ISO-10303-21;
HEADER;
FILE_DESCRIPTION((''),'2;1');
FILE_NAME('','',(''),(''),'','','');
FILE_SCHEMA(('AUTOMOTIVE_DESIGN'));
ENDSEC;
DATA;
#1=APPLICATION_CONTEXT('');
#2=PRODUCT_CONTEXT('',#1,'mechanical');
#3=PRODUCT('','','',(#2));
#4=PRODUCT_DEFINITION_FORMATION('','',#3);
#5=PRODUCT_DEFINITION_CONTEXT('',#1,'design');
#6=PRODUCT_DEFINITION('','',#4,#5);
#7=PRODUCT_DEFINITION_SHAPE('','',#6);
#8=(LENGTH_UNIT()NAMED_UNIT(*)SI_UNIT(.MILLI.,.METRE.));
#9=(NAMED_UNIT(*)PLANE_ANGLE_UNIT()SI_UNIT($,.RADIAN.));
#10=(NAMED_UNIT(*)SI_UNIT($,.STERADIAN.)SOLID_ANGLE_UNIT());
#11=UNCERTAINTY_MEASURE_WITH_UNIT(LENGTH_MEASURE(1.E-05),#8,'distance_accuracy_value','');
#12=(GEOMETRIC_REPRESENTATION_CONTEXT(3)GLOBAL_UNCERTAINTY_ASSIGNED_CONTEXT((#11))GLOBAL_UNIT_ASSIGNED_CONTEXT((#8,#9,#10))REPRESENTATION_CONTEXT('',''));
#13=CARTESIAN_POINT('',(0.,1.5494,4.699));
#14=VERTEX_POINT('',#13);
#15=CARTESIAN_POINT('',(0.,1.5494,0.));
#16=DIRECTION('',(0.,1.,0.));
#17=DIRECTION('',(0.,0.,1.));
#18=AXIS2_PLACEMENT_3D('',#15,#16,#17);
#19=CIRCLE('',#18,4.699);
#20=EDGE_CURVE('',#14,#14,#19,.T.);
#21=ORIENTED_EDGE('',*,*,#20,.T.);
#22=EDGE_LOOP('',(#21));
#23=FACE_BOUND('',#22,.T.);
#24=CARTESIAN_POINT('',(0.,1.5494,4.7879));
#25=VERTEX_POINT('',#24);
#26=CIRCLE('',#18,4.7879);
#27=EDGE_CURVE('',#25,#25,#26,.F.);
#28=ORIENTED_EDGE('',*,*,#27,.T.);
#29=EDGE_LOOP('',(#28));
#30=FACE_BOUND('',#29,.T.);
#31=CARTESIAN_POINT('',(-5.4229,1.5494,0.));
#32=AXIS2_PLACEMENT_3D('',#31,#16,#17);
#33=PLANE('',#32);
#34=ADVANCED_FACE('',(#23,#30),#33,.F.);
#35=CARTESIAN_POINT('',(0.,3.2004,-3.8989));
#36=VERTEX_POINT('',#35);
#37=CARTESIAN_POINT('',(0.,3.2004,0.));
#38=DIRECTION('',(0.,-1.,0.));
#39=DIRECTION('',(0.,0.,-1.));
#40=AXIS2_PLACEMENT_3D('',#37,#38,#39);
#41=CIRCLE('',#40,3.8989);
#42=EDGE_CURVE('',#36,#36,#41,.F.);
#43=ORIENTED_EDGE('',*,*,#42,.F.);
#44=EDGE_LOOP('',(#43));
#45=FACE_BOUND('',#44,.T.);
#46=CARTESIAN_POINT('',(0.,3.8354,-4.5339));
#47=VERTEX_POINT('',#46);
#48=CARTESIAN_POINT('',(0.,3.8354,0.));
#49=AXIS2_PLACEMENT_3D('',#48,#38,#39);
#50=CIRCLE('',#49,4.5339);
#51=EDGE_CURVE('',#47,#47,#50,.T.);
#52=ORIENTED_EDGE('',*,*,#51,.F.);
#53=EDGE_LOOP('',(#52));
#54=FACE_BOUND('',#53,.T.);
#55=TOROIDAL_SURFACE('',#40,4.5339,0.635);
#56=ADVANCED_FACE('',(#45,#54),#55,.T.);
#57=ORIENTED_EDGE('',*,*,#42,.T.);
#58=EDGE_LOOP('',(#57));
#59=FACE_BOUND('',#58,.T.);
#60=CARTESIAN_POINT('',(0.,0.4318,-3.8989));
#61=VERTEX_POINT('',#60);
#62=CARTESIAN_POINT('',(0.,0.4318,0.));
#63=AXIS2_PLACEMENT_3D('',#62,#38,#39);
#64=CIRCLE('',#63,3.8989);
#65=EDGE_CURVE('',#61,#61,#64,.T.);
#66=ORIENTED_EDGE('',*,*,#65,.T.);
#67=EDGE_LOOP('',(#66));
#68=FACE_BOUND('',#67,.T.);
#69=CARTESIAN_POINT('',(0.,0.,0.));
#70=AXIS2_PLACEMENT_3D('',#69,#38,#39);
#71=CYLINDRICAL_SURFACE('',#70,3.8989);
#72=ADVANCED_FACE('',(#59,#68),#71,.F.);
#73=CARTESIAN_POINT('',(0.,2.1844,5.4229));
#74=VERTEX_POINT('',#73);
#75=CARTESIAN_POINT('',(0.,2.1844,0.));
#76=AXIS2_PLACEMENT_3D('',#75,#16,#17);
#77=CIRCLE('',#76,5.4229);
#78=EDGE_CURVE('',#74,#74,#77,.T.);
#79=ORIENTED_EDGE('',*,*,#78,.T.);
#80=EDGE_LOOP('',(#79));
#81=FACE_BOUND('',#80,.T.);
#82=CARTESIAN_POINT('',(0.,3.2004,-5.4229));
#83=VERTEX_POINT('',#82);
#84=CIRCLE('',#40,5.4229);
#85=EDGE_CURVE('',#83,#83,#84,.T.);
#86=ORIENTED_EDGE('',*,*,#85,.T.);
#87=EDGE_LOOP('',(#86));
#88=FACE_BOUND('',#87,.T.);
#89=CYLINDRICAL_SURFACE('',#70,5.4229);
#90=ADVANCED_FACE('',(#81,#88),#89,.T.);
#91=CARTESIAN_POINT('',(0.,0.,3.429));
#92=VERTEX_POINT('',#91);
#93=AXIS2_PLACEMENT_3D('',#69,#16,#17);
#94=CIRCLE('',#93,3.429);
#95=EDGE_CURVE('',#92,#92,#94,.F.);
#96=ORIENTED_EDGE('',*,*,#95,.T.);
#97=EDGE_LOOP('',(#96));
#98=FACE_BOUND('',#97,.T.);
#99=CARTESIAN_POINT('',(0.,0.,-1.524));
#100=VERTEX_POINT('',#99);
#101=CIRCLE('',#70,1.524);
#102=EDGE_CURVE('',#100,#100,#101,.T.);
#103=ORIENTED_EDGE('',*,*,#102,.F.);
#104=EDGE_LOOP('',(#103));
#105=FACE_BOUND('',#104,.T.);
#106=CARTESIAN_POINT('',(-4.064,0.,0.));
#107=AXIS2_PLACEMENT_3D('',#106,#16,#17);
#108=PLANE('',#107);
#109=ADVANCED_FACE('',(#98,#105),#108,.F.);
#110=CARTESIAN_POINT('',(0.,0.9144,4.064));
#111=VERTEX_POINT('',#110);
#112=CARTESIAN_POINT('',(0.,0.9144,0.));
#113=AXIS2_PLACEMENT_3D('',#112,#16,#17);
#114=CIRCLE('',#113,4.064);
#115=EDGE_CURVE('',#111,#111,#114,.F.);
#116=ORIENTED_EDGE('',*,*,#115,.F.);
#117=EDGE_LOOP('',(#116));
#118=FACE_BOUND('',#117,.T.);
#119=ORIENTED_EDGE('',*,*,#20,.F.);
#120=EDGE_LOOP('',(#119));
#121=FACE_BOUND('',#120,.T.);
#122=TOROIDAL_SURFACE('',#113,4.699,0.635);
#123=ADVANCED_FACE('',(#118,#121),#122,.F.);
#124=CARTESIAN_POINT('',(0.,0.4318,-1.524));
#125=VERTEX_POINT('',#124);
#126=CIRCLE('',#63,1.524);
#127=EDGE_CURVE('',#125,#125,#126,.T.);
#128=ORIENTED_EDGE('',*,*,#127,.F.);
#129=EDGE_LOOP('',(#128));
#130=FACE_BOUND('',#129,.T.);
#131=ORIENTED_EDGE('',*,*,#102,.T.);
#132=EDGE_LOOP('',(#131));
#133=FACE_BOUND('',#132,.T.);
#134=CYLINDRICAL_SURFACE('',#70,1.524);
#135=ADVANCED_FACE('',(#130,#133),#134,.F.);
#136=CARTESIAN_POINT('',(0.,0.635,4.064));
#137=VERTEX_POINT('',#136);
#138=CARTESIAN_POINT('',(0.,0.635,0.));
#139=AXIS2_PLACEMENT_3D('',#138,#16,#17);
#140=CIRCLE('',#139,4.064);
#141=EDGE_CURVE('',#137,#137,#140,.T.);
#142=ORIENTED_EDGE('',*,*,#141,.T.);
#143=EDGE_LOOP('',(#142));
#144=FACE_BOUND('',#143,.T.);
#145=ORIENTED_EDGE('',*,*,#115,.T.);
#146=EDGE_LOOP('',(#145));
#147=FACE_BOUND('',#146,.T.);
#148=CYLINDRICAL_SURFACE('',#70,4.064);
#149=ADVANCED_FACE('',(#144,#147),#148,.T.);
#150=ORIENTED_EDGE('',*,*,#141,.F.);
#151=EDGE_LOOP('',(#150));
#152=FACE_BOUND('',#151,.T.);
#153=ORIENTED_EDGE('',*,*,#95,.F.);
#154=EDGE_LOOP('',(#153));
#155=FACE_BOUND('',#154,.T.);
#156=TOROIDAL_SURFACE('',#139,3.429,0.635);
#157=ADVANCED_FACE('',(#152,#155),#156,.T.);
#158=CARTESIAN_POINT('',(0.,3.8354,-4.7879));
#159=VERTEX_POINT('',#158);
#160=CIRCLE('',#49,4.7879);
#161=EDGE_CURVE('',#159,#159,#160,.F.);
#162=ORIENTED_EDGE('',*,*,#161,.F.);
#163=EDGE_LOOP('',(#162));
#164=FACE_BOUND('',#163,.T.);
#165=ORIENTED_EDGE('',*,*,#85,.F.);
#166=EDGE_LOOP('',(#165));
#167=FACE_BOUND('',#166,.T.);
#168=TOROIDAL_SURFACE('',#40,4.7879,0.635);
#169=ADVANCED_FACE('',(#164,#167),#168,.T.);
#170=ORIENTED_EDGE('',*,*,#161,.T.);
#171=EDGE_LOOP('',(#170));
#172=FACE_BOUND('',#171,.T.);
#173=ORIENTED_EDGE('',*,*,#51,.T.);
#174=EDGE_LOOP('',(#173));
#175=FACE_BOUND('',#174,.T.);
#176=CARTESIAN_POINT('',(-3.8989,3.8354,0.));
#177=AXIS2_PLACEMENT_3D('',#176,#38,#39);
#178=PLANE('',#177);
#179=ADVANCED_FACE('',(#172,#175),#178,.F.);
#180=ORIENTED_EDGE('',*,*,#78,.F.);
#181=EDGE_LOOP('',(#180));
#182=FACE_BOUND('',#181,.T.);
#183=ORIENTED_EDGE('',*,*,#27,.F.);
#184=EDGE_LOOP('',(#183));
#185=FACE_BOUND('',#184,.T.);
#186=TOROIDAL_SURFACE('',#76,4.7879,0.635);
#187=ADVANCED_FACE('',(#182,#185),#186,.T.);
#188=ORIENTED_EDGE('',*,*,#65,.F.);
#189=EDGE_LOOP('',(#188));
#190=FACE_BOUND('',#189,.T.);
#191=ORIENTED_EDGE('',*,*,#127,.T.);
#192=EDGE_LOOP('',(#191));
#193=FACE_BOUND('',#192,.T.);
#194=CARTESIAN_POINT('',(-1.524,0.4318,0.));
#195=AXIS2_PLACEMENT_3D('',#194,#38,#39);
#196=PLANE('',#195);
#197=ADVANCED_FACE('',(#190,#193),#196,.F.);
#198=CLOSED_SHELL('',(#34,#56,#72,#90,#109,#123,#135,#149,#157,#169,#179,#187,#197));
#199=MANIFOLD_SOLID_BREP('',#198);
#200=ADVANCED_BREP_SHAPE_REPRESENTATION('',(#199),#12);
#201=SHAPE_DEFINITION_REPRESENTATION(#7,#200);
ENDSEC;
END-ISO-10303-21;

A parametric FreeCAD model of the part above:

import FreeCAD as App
import Part
import Sketcher
Q = App.Units.Quantity


def edges_at(feature, points):
    """Names of the edges that pass closest to the given points."""
    edges = feature.Shape.Edges
    near = lambda p: min(range(len(edges)), key=lambda i: edges[i].distToShape(Part.Vertex(*p))[0])
    return sorted({f"Edge{near(p) + 1}" for p in points})


def add_polygon(sketch, points):
    """Adds a closed chain of lines whose ends are joined by coincident constraints."""
    first, n = sketch.GeometryCount, len(points)
    for a, b in zip(points, points[1:] + points[:1]):
        sketch.addGeometry(Part.LineSegment(App.Vector(*a, 0), App.Vector(*b, 0)), False)
    for i in range(n):
        sketch.addConstraint(Sketcher.Constraint("Coincident", first + i, 2, first + (i + 1) % n, 1))

doc = App.newDocument("Part")
body = doc.addObject("PartDesign::Body", "Body")

# Sketch on XY plane
sketch1 = body.newObject("Sketcher::SketchObject", "Sketch")
sketch1.AttachmentSupport = (doc.getObject("XY_Plane"), [""])
sketch1.MapMode = "FlatFace"
add_polygon(sketch1, [(-4.06, 0), (-1.52, 0), (-1.52, 0.43), (-3.9, 0.43), (-3.9, 3.84), (-5.42, 3.84), (-5.42, 1.55), (-4.06, 1.55)])  # lines 0-7
sketch1.addConstraint([
    Sketcher.Constraint("Horizontal", 0),
    Sketcher.Constraint("Vertical", 1),
    Sketcher.Constraint("Horizontal", 2),
    Sketcher.Constraint("Vertical", 3),
    Sketcher.Constraint("Horizontal", 4),
    Sketcher.Constraint("Vertical", 5),
    Sketcher.Constraint("Horizontal", 6),
    Sketcher.Constraint("Vertical", 7),
    Sketcher.Constraint("PointOnObject", 0, 2, -1),
    Sketcher.Constraint("DistanceX", 0, 1, 0, 2, Q("0.1 in")),
    Sketcher.Constraint("DistanceX", 4, 2, 4, 1, Q("0.06 in")),
    Sketcher.Constraint("DistanceY", 5, 2, 5, 1, Q("0.09 in")),
    Sketcher.Constraint("DistanceY", 1, 1, 1, 2, Q("0.017 in")),
    Sketcher.Constraint("DistanceY", 3, 1, 3, 2, Q("0.134 in")),
    Sketcher.Constraint("DistanceX", 0, 2, -1, 1, Q("0.06 in")),
    Sketcher.Constraint("DistanceX", 2, 2, 2, 1, Q("0.0935 in")),
])
revolution = body.newObject("PartDesign::Revolution", "Revolution")
revolution.Profile = sketch1
revolution.ReferenceAxis = (sketch1, ["V_Axis"])
revolution.Angle = 360
doc.recompute()

fillet = body.newObject("PartDesign::Fillet", "Fillet")
fillet.Base = (revolution, edges_at(revolution, [
    (0, 1.549, 4.064),
    (0, 1.549, 5.423),
    (0, 3.835, 5.423),
    (0, 3.835, 3.899),
    (0, 0, 4.064),
]))
fillet.Radius = Q("0.025 in")

doc.recompute()
